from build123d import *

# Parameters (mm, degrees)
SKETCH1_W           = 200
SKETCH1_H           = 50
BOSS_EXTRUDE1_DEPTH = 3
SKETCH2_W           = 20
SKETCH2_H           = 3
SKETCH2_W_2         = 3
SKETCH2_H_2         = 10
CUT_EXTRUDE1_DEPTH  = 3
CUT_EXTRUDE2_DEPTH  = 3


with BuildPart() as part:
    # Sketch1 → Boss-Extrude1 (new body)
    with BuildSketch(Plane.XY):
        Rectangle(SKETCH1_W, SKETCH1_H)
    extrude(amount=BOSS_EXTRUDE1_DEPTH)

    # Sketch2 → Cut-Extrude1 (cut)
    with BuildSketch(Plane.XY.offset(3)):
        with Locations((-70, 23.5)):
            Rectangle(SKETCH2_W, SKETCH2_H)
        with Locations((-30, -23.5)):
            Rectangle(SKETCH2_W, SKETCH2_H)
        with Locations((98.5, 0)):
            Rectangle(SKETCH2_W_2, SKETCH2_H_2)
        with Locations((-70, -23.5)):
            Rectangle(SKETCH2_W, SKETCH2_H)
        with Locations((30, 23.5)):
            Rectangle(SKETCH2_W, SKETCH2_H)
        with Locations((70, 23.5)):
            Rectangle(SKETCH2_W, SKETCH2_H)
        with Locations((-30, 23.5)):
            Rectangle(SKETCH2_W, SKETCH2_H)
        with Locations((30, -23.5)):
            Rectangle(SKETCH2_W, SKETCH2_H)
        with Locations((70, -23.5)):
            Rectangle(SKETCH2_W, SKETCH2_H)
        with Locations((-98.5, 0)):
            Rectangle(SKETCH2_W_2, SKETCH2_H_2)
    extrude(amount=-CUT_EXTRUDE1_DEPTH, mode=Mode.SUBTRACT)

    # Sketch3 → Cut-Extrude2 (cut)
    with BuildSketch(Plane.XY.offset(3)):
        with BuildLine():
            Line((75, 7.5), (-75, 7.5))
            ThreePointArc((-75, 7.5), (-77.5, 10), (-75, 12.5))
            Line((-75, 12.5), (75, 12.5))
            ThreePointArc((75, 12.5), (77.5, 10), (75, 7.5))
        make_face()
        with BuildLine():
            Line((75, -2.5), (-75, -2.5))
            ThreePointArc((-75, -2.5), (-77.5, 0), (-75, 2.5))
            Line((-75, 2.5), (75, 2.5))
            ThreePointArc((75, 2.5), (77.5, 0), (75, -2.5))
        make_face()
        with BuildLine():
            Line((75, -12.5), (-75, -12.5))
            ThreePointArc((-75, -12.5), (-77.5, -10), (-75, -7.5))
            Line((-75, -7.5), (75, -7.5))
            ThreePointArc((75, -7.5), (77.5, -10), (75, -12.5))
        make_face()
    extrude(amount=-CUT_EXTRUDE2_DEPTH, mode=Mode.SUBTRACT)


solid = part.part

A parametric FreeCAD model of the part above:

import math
import FreeCAD as App
import Part
import Sketcher

doc = App.newDocument("Part")
body = doc.addObject("PartDesign::Body", "Body")

sketch1 = body.newObject("Sketcher::SketchObject", "Sketch")
sketch1.AttachmentSupport = (doc.getObject("XY_Plane"), [""])
sketch1.MapMode = "FlatFace"
sketch1.addGeometry(Part.LineSegment(App.Vector(-100, 25, 0), App.Vector(-100, -25, 0)), False)
sketch1.addGeometry(Part.LineSegment(App.Vector(-100, -25, 0), App.Vector(100, -25, 0)), False)
sketch1.addGeometry(Part.LineSegment(App.Vector(100, -25, 0), App.Vector(100, 25, 0)), False)
sketch1.addGeometry(Part.LineSegment(App.Vector(100, 25, 0), App.Vector(-100, 25, 0)), False)
sketch1.addConstraint(Sketcher.Constraint("Coincident", 0, 2, 1, 1))
sketch1.addConstraint(Sketcher.Constraint("Coincident", 1, 2, 2, 1))
sketch1.addConstraint(Sketcher.Constraint("Coincident", 2, 2, 3, 1))
sketch1.addConstraint(Sketcher.Constraint("Coincident", 3, 2, 0, 1))
sketch1.addConstraint(Sketcher.Constraint("Vertical", 0))
sketch1.addConstraint(Sketcher.Constraint("Horizontal", 1))
sketch1.addConstraint(Sketcher.Constraint("Vertical", 2))
sketch1.addConstraint(Sketcher.Constraint("Horizontal", 3))
sketch1.addConstraint(Sketcher.Constraint("Symmetric", 0, 2, 2, 2, -1, 1))
sketch1.addConstraint(Sketcher.Constraint("DistanceX", 1, 1, 1, 2, 200.0))
sketch1.addConstraint(Sketcher.Constraint("DistanceY", 0, 2, 0, 1, 50.0))
pad1 = body.newObject("PartDesign::Pad", "Pad")
pad1.Profile = sketch1
pad1.Length = 3

sketch2 = body.newObject("Sketcher::SketchObject", "Sketch001")
sketch2.AttachmentSupport = (doc.getObject("XY_Plane"), [""])
sketch2.MapMode = "FlatFace"
sketch2.AttachmentOffset = App.Placement(App.Vector(0, 0, 3), App.Rotation())
sketch2.addGeometry(Part.LineSegment(App.Vector(-80, 25, 0), App.Vector(-80, 22, 0)), False)
sketch2.addGeometry(Part.LineSegment(App.Vector(-80, 22, 0), App.Vector(-60, 22, 0)), False)
sketch2.addGeometry(Part.LineSegment(App.Vector(-60, 22, 0), App.Vector(-60, 25, 0)), False)
sketch2.addGeometry(Part.LineSegment(App.Vector(-60, 25, 0), App.Vector(-80, 25, 0)), False)
sketch2.addGeometry(Part.LineSegment(App.Vector(-40, -22, 0), App.Vector(-40, -25, 0)), False)
sketch2.addGeometry(Part.LineSegment(App.Vector(-40, -25, 0), App.Vector(-20, -25, 0)), False)
sketch2.addGeometry(Part.LineSegment(App.Vector(-20, -25, 0), App.Vector(-20, -22, 0)), False)
sketch2.addGeometry(Part.LineSegment(App.Vector(-20, -22, 0), App.Vector(-40, -22, 0)), False)
sketch2.addGeometry(Part.LineSegment(App.Vector(97, 5, 0), App.Vector(97, -5, 0)), False)
sketch2.addGeometry(Part.LineSegment(App.Vector(97, -5, 0), App.Vector(100, -5, 0)), False)
sketch2.addGeometry(Part.LineSegment(App.Vector(100, -5, 0), App.Vector(100, 5, 0)), False)
sketch2.addGeometry(Part.LineSegment(App.Vector(100, 5, 0), App.Vector(97, 5, 0)), False)
sketch2.addGeometry(Part.LineSegment(App.Vector(-80, -22, 0), App.Vector(-80, -25, 0)), False)
sketch2.addGeometry(Part.LineSegment(App.Vector(-80, -25, 0), App.Vector(-60, -25, 0)), False)
sketch2.addGeometry(Part.LineSegment(App.Vector(-60, -25, 0), App.Vector(-60, -22, 0)), False)
sketch2.addGeometry(Part.LineSegment(App.Vector(-60, -22, 0), App.Vector(-80, -22, 0)), False)
sketch2.addGeometry(Part.LineSegment(App.Vector(20, 25, 0), App.Vector(20, 22, 0)), False)
sketch2.addGeometry(Part.LineSegment(App.Vector(20, 22, 0), App.Vector(40, 22, 0)), False)
sketch2.addGeometry(Part.LineSegment(App.Vector(40, 22, 0), App.Vector(40, 25, 0)), False)
sketch2.addGeometry(Part.LineSegment(App.Vector(40, 25, 0), App.Vector(20, 25, 0)), False)
sketch2.addGeometry(Part.LineSegment(App.Vector(60, 25, 0), App.Vector(60, 22, 0)), False)
sketch2.addGeometry(Part.LineSegment(App.Vector(60, 22, 0), App.Vector(80, 22, 0)), False)
sketch2.addGeometry(Part.LineSegment(App.Vector(80, 22, 0), App.Vector(80, 25, 0)), False)
sketch2.addGeometry(Part.LineSegment(App.Vector(80, 25, 0), App.Vector(60, 25, 0)), False)
sketch2.addGeometry(Part.LineSegment(App.Vector(-40, 25, 0), App.Vector(-40, 22, 0)), False)
sketch2.addGeometry(Part.LineSegment(App.Vector(-40, 22, 0), App.Vector(-20, 22, 0)), False)
sketch2.addGeometry(Part.LineSegment(App.Vector(-20, 22, 0), App.Vector(-20, 25, 0)), False)
sketch2.addGeometry(Part.LineSegment(App.Vector(-20, 25, 0), App.Vector(-40, 25, 0)), False)
sketch2.addGeometry(Part.LineSegment(App.Vector(20, -22, 0), App.Vector(20, -25, 0)), False)
sketch2.addGeometry(Part.LineSegment(App.Vector(20, -25, 0), App.Vector(40, -25, 0)), False)
sketch2.addGeometry(Part.LineSegment(App.Vector(40, -25, 0), App.Vector(40, -22, 0)), False)
sketch2.addGeometry(Part.LineSegment(App.Vector(40, -22, 0), App.Vector(20, -22, 0)), False)
sketch2.addGeometry(Part.LineSegment(App.Vector(60, -22, 0), App.Vector(60, -25, 0)), False)
sketch2.addGeometry(Part.LineSegment(App.Vector(60, -25, 0), App.Vector(80, -25, 0)), False)
sketch2.addGeometry(Part.LineSegment(App.Vector(80, -25, 0), App.Vector(80, -22, 0)), False)
sketch2.addGeometry(Part.LineSegment(App.Vector(80, -22, 0), App.Vector(60, -22, 0)), False)
sketch2.addGeometry(Part.LineSegment(App.Vector(-100, 5, 0), App.Vector(-100, -5, 0)), False)
sketch2.addGeometry(Part.LineSegment(App.Vector(-100, -5, 0), App.Vector(-97, -5, 0)), False)
sketch2.addGeometry(Part.LineSegment(App.Vector(-97, -5, 0), App.Vector(-97, 5, 0)), False)
sketch2.addGeometry(Part.LineSegment(App.Vector(-97, 5, 0), App.Vector(-100, 5, 0)), False)
sketch2.addConstraint(Sketcher.Constraint("Coincident", 0, 2, 1, 1))
sketch2.addConstraint(Sketcher.Constraint("Coincident", 1, 2, 2, 1))
sketch2.addConstraint(Sketcher.Constraint("Coincident", 2, 2, 3, 1))
sketch2.addConstraint(Sketcher.Constraint("Coincident", 3, 2, 0, 1))
sketch2.addConstraint(Sketcher.Constraint("Coincident", 4, 2, 5, 1))
sketch2.addConstraint(Sketcher.Constraint("Coincident", 5, 2, 6, 1))
sketch2.addConstraint(Sketcher.Constraint("Coincident", 6, 2, 7, 1))
sketch2.addConstraint(Sketcher.Constraint("Coincident", 7, 2, 4, 1))
sketch2.addConstraint(Sketcher.Constraint("Coincident", 8, 2, 9, 1))
sketch2.addConstraint(Sketcher.Constraint("Coincident", 9, 2, 10, 1))
sketch2.addConstraint(Sketcher.Constraint("Coincident", 10, 2, 11, 1))
sketch2.addConstraint(Sketcher.Constraint("Coincident", 11, 2, 8, 1))
sketch2.addConstraint(Sketcher.Constraint("Coincident", 12, 2, 13, 1))
sketch2.addConstraint(Sketcher.Constraint("Coincident", 13, 2, 14, 1))
sketch2.addConstraint(Sketcher.Constraint("Coincident", 14, 2, 15, 1))
sketch2.addConstraint(Sketcher.Constraint("Coincident", 15, 2, 12, 1))
sketch2.addConstraint(Sketcher.Constraint("Coincident", 16, 2, 17, 1))
sketch2.addConstraint(Sketcher.Constraint("Coincident", 17, 2, 18, 1))
sketch2.addConstraint(Sketcher.Constraint("Coincident", 18, 2, 19, 1))
sketch2.addConstraint(Sketcher.Constraint("Coincident", 19, 2, 16, 1))
sketch2.addConstraint(Sketcher.Constraint("Coincident", 20, 2, 21, 1))
sketch2.addConstraint(Sketcher.Constraint("Coincident", 21, 2, 22, 1))
sketch2.addConstraint(Sketcher.Constraint("Coincident", 22, 2, 23, 1))
sketch2.addConstraint(Sketcher.Constraint("Coincident", 23, 2, 20, 1))
sketch2.addConstraint(Sketcher.Constraint("Coincident", 24, 2, 25, 1))
sketch2.addConstraint(Sketcher.Constraint("Coincident", 25, 2, 26, 1))
sketch2.addConstraint(Sketcher.Constraint("Coincident", 26, 2, 27, 1))
sketch2.addConstraint(Sketcher.Constraint("Coincident", 27, 2, 24, 1))
sketch2.addConstraint(Sketcher.Constraint("Coincident", 28, 2, 29, 1))
sketch2.addConstraint(Sketcher.Constraint("Coincident", 29, 2, 30, 1))
sketch2.addConstraint(Sketcher.Constraint("Coincident", 30, 2, 31, 1))
sketch2.addConstraint(Sketcher.Constraint("Coincident", 31, 2, 28, 1))
sketch2.addConstraint(Sketcher.Constraint("Coincident", 32, 2, 33, 1))
sketch2.addConstraint(Sketcher.Constraint("Coincident", 33, 2, 34, 1))
sketch2.addConstraint(Sketcher.Constraint("Coincident", 34, 2, 35, 1))
sketch2.addConstraint(Sketcher.Constraint("Coincident", 35, 2, 32, 1))
sketch2.addConstraint(Sketcher.Constraint("Coincident", 36, 2, 37, 1))
sketch2.addConstraint(Sketcher.Constraint("Coincident", 37, 2, 38, 1))
sketch2.addConstraint(Sketcher.Constraint("Coincident", 38, 2, 39, 1))
sketch2.addConstraint(Sketcher.Constraint("Coincident", 39, 2, 36, 1))
sketch2.addConstraint(Sketcher.Constraint("Vertical", 0))
sketch2.addConstraint(Sketcher.Constraint("Horizontal", 1))
sketch2.addConstraint(Sketcher.Constraint("Vertical", 2))
sketch2.addConstraint(Sketcher.Constraint("Horizontal", 3))
sketch2.addConstraint(Sketcher.Constraint("Vertical", 4))
sketch2.addConstraint(Sketcher.Constraint("Horizontal", 5))
sketch2.addConstraint(Sketcher.Constraint("Vertical", 6))
sketch2.addConstraint(Sketcher.Constraint("Horizontal", 7))
sketch2.addConstraint(Sketcher.Constraint("Vertical", 8))
sketch2.addConstraint(Sketcher.Constraint("Horizontal", 9))
sketch2.addConstraint(Sketcher.Constraint("Vertical", 10))
sketch2.addConstraint(Sketcher.Constraint("Horizontal", 11))
sketch2.addConstraint(Sketcher.Constraint("Vertical", 12))
sketch2.addConstraint(Sketcher.Constraint("Horizontal", 13))
sketch2.addConstraint(Sketcher.Constraint("Vertical", 14))
sketch2.addConstraint(Sketcher.Constraint("Horizontal", 15))
sketch2.addConstraint(Sketcher.Constraint("Vertical", 16))
sketch2.addConstraint(Sketcher.Constraint("Horizontal", 17))
sketch2.addConstraint(Sketcher.Constraint("Vertical", 18))
sketch2.addConstraint(Sketcher.Constraint("Horizontal", 19))
sketch2.addConstraint(Sketcher.Constraint("Vertical", 20))
sketch2.addConstraint(Sketcher.Constraint("Horizontal", 21))
sketch2.addConstraint(Sketcher.Constraint("Vertical", 22))
sketch2.addConstraint(Sketcher.Constraint("Horizontal", 23))
sketch2.addConstraint(Sketcher.Constraint("Vertical", 24))
sketch2.addConstraint(Sketcher.Constraint("Horizontal", 25))
sketch2.addConstraint(Sketcher.Constraint("Vertical", 26))
sketch2.addConstraint(Sketcher.Constraint("Horizontal", 27))
sketch2.addConstraint(Sketcher.Constraint("Vertical", 28))
sketch2.addConstraint(Sketcher.Constraint("Horizontal", 29))
sketch2.addConstraint(Sketcher.Constraint("Vertical", 30))
sketch2.addConstraint(Sketcher.Constraint("Horizontal", 31))
sketch2.addConstraint(Sketcher.Constraint("Vertical", 32))
sketch2.addConstraint(Sketcher.Constraint("Horizontal", 33))
sketch2.addConstraint(Sketcher.Constraint("Vertical", 34))
sketch2.addConstraint(Sketcher.Constraint("Horizontal", 35))
sketch2.addConstraint(Sketcher.Constraint("Vertical", 36))
sketch2.addConstraint(Sketcher.Constraint("Horizontal", 37))
sketch2.addConstraint(Sketcher.Constraint("Vertical", 38))
sketch2.addConstraint(Sketcher.Constraint("Horizontal", 39))
sketch2.addConstraint(Sketcher.Constraint("Symmetric", 6, 2, 16, 2, -1, 1))
sketch2.addConstraint(Sketcher.Constraint("Symmetric", 4, 2, 18, 2, -1, 1))
sketch2.addConstraint(Sketcher.Constraint("Symmetric", 14, 2, 20, 2, -1, 1))
sketch2.addConstraint(Sketcher.Constraint("Symmetric", 12, 2, 22, 2, -1, 1))
sketch2.addConstraint(Sketcher.Constraint("Symmetric", 26, 2, 28, 2, -1, 1))
sketch2.addConstraint(Sketcher.Constraint("Symmetric", 24, 2, 30, 2, -1, 1))
sketch2.addConstraint(Sketcher.Constraint("Symmetric", 2, 2, 32, 2, -1, 1))
sketch2.addConstraint(Sketcher.Constraint("Symmetric", 0, 2, 34, 2, -1, 1))
sketch2.addConstraint(Sketcher.Constraint("Symmetric", 10, 2, 36, 2, -1, 1))
sketch2.addConstraint(Sketcher.Constraint("Symmetric", 8, 2, 38, 2, -1, 1))
sketch2.addConstraint(Sketcher.Constraint("Symmetric", 1, 2, 20, 2, -2))
sketch2.addConstraint(Sketcher.Constraint("Symmetric", 3, 2, 22, 2, -2))
sketch2.addConstraint(Sketcher.Constraint("Symmetric", 17, 2, 24, 2, -2))
sketch2.addConstraint(Sketcher.Constraint("Symmetric", 19, 2, 26, 2, -2))
sketch2.addConstraint(Sketcher.Constraint("Horizontal", 5, 2, 12, 2))
sketch2.addConstraint(Sketcher.Constraint("Horizontal", 7, 2, 14, 2))
sketch2.addConstraint(Sketcher.Constraint("Horizontal", 9, 2, 36, 2))
sketch2.addConstraint(Sketcher.Constraint("Equal", 3, 5))
sketch2.addConstraint(Sketcher.Constraint("Equal", 39, 0))
sketch2.addConstraint(Sketcher.Constraint("DistanceX", 1, 1, 1, 2, 20.0))
sketch2.addConstraint(Sketcher.Constraint("DistanceX", 9, 1, 9, 2, 3.0))
sketch2.addConstraint(Sketcher.Constraint("DistanceY", 8, 2, 8, 1, 10.0))
sketch2.addConstraint(Sketcher.Constraint("DistanceX", 0, 2, -1, 1, 80.0))
sketch2.addConstraint(Sketcher.Constraint("DistanceY", -1, 1, 0, 2, 22.0))
sketch2.addConstraint(Sketcher.Constraint("DistanceX", 4, 2, -1, 1, 40.0))
sketch2.addConstraint(Sketcher.Constraint("DistanceX", -1, 1, 8, 2, 97.0))
pocket1 = body.newObject("PartDesign::Pocket", "Pocket")
pocket1.Profile = sketch2
pocket1.Length = 3

sketch3 = body.newObject("Sketcher::SketchObject", "Sketch002")
sketch3.AttachmentSupport = (doc.getObject("XY_Plane"), [""])
sketch3.MapMode = "FlatFace"
sketch3.AttachmentOffset = App.Placement(App.Vector(0, 0, 3), App.Rotation())
sketch3.addGeometry(Part.LineSegment(App.Vector(-75, 7.5, 0), App.Vector(75, 7.5, 0)), False)
sketch3.addGeometry(Part.ArcOfCircle(Part.Circle(App.Vector(75, 10, 0), App.Vector(0, 0, 1), 2.5), math.radians(-90), math.radians(90)), False)
sketch3.addGeometry(Part.LineSegment(App.Vector(75, 12.5, 0), App.Vector(-75, 12.5, 0)), False)
sketch3.addGeometry(Part.ArcOfCircle(Part.Circle(App.Vector(-75, 10, 0), App.Vector(0, 0, 1), 2.5), math.radians(90), math.radians(270)), False)
sketch3.addGeometry(Part.LineSegment(App.Vector(-75, -2.5, 0), App.Vector(75, -2.5, 0)), False)
sketch3.addGeometry(Part.ArcOfCircle(Part.Circle(App.Vector(75, 0, 0), App.Vector(0, 0, 1), 2.5), math.radians(-90), math.radians(90)), False)
sketch3.addGeometry(Part.LineSegment(App.Vector(75, 2.5, 0), App.Vector(-75, 2.5, 0)), False)
sketch3.addGeometry(Part.ArcOfCircle(Part.Circle(App.Vector(-75, 0, 0), App.Vector(0, 0, 1), 2.5), math.radians(90), math.radians(270)), False)
sketch3.addGeometry(Part.LineSegment(App.Vector(-75, -12.5, 0), App.Vector(75, -12.5, 0)), False)
sketch3.addGeometry(Part.ArcOfCircle(Part.Circle(App.Vector(75, -10, 0), App.Vector(0, 0, 1), 2.5), math.radians(-90), math.radians(90)), False)
sketch3.addGeometry(Part.LineSegment(App.Vector(75, -7.5, 0), App.Vector(-75, -7.5, 0)), False)
sketch3.addGeometry(Part.ArcOfCircle(Part.Circle(App.Vector(-75, -10, 0), App.Vector(0, 0, 1), 2.5), math.radians(90), math.radians(270)), False)
sketch3.addConstraint(Sketcher.Constraint("Tangent", 0, 2, 1, 1))
sketch3.addConstraint(Sketcher.Constraint("Tangent", 1, 2, 2, 1))
sketch3.addConstraint(Sketcher.Constraint("Tangent", 2, 2, 3, 1))
sketch3.addConstraint(Sketcher.Constraint("Tangent", 3, 2, 0, 1))
sketch3.addConstraint(Sketcher.Constraint("Tangent", 4, 2, 5, 1))
sketch3.addConstraint(Sketcher.Constraint("Tangent", 5, 2, 6, 1))
sketch3.addConstraint(Sketcher.Constraint("Tangent", 6, 2, 7, 1))
sketch3.addConstraint(Sketcher.Constraint("Tangent", 7, 2, 4, 1))
sketch3.addConstraint(Sketcher.Constraint("Tangent", 8, 2, 9, 1))
sketch3.addConstraint(Sketcher.Constraint("Tangent", 9, 2, 10, 1))
sketch3.addConstraint(Sketcher.Constraint("Tangent", 10, 2, 11, 1))
sketch3.addConstraint(Sketcher.Constraint("Tangent", 11, 2, 8, 1))
sketch3.addConstraint(Sketcher.Constraint("Horizontal", 0))
sketch3.addConstraint(Sketcher.Constraint("Horizontal", 2))
sketch3.addConstraint(Sketcher.Constraint("Horizontal", 4))
sketch3.addConstraint(Sketcher.Constraint("Horizontal", 6))
sketch3.addConstraint(Sketcher.Constraint("Horizontal", 8))
sketch3.addConstraint(Sketcher.Constraint("Horizontal", 10))
sketch3.addConstraint(Sketcher.Constraint("Equal", 3, 5))
sketch3.addConstraint(Sketcher.Constraint("Equal", 7, 9))
sketch3.addConstraint(Sketcher.Constraint("Symmetric", 5, 3, 7, 3, -1, 1))
sketch3.addConstraint(Sketcher.Constraint("Symmetric", 3, 3, 9, 3, -1, 1))
sketch3.addConstraint(Sketcher.Constraint("Vertical", 1, 3, 5, 3))
sketch3.addConstraint(Sketcher.Constraint("Vertical", 3, 3, 7, 3))
sketch3.addConstraint(Sketcher.Constraint("Vertical", 7, 3, 11, 3))
sketch3.addConstraint(Sketcher.Constraint("Radius", 1, 2.5))
sketch3.addConstraint(Sketcher.Constraint("DistanceX", 0, 1, 0, 2, 150.0))
sketch3.addConstraint(Sketcher.Constraint("DistanceY", -1, 1, 1, 3, 10.0))
pocket2 = body.newObject("PartDesign::Pocket", "Pocket001")
pocket2.Profile = sketch3
pocket2.Length = 3

doc.recompute()
